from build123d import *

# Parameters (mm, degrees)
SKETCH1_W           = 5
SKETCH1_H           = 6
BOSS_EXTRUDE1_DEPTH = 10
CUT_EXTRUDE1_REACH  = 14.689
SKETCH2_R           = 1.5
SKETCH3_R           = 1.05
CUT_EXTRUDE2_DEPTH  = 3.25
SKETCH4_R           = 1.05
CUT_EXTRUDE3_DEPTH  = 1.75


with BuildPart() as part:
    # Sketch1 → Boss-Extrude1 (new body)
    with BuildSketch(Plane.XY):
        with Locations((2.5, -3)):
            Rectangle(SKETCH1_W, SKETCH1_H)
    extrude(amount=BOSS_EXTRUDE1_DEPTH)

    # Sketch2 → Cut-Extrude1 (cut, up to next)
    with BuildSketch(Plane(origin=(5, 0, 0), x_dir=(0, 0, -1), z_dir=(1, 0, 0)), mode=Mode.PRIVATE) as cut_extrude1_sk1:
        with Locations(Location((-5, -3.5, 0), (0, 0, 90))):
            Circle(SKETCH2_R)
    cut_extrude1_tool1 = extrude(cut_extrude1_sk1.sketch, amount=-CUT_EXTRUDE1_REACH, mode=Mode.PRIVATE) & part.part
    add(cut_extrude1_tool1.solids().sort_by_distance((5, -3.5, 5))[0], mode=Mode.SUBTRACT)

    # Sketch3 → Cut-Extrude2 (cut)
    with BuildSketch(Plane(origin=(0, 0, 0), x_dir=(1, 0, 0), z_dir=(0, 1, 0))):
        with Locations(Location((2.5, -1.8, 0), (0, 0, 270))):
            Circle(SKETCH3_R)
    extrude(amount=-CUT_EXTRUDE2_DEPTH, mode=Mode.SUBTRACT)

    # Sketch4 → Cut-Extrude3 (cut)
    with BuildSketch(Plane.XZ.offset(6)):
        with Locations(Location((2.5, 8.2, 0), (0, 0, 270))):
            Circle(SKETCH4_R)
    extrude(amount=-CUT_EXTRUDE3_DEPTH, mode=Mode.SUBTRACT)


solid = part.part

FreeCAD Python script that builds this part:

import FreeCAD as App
import Part
import Sketcher

doc = App.newDocument("Part")
body = doc.addObject("PartDesign::Body", "Body")

# Sketch on XY plane
sketch1 = body.newObject("Sketcher::SketchObject", "Sketch")
sketch1.AttachmentSupport = (doc.getObject("XY_Plane"), [""])
sketch1.MapMode = "FlatFace"
sketch1.addGeometry([
    Part.LineSegment(App.Vector(0, 0, 0), App.Vector(0, -6, 0)),
    Part.LineSegment(App.Vector(0, -6, 0), App.Vector(5, -6, 0)),
    Part.LineSegment(App.Vector(5, -6, 0), App.Vector(5, 0, 0)),
    Part.LineSegment(App.Vector(5, 0, 0), App.Vector(0, 0, 0)),
], False)
sketch1.addConstraint([
    Sketcher.Constraint("Coincident", 0, 2, 1, 1),
    Sketcher.Constraint("Coincident", 1, 2, 2, 1),
    Sketcher.Constraint("Coincident", 2, 2, 3, 1),
    Sketcher.Constraint("Coincident", 3, 2, 0, 1),
    Sketcher.Constraint("Vertical", 0),
    Sketcher.Constraint("Horizontal", 1),
    Sketcher.Constraint("Vertical", 2),
    Sketcher.Constraint("Horizontal", 3),
    Sketcher.Constraint("Coincident", 3, 2, -1, 1),
    Sketcher.Constraint("DistanceX", 1, 1, 1, 2, 5.0),
    Sketcher.Constraint("DistanceY", 0, 2, 0, 1, 6.0),
])
pad1 = body.newObject("PartDesign::Pad", "Pad")
pad1.Profile = sketch1
pad1.Length = 10

# Sketch on YZ plane
sketch2 = body.newObject("Sketcher::SketchObject", "Sketch001")
sketch2.AttachmentSupport = (doc.getObject("YZ_Plane"), [""])
sketch2.MapMode = "FlatFace"
sketch2.AttachmentOffset = App.Placement(App.Vector(0, 0, 5), App.Rotation())
sketch2.addGeometry(Part.Circle(App.Vector(-3.5, 5, 0), App.Vector(0, 0, 1), 1.5), False)
sketch2.addConstraint([
    Sketcher.Constraint("Diameter", 0, 3.0),
    Sketcher.Constraint("DistanceY", -1, 1, 0, 3, 5.0),
    Sketcher.Constraint("DistanceX", 0, 3, -1, 1, 3.5),
])
pocket1 = body.newObject("PartDesign::Pocket", "Pocket")
pocket1.Profile = sketch2
pocket1.Type = "UpToFirst"

# Sketch on XZ plane
sketch3 = body.newObject("Sketcher::SketchObject", "Sketch002")
sketch3.AttachmentSupport = (doc.getObject("XZ_Plane"), [""])
sketch3.MapMode = "FlatFace"
sketch3.addGeometry(Part.Circle(App.Vector(2.5, 1.8, 0), App.Vector(0, 0, 1), 1.1), False)
sketch3.addConstraint([
    Sketcher.Constraint("Diameter", 0, 2.1),
    Sketcher.Constraint("DistanceX", -1, 1, 0, 3, 2.5),
    Sketcher.Constraint("DistanceY", -1, 1, 0, 3, 1.8),
])
pocket2 = body.newObject("PartDesign::Pocket", "Pocket001")
pocket2.Profile = sketch3
pocket2.Length = 3.25
pocket2.Reversed = True

# Sketch on XZ plane
sketch4 = body.newObject("Sketcher::SketchObject", "Sketch003")
sketch4.AttachmentSupport = (doc.getObject("XZ_Plane"), [""])
sketch4.MapMode = "FlatFace"
sketch4.AttachmentOffset = App.Placement(App.Vector(0, 0, 6), App.Rotation())
sketch4.addGeometry(Part.Circle(App.Vector(2.5, 8.2, 0), App.Vector(0, 0, 1), 1.1), False)
sketch4.addConstraint([
    Sketcher.Constraint("Diameter", 0, 2.1),
    Sketcher.Constraint("DistanceX", -1, 1, 0, 3, 2.5),
    Sketcher.Constraint("DistanceY", -1, 1, 0, 3, 8.2),
])
pocket3 = body.newObject("PartDesign::Pocket", "Pocket002")
pocket3.Profile = sketch4
pocket3.Length = 1.75

doc.recompute()
